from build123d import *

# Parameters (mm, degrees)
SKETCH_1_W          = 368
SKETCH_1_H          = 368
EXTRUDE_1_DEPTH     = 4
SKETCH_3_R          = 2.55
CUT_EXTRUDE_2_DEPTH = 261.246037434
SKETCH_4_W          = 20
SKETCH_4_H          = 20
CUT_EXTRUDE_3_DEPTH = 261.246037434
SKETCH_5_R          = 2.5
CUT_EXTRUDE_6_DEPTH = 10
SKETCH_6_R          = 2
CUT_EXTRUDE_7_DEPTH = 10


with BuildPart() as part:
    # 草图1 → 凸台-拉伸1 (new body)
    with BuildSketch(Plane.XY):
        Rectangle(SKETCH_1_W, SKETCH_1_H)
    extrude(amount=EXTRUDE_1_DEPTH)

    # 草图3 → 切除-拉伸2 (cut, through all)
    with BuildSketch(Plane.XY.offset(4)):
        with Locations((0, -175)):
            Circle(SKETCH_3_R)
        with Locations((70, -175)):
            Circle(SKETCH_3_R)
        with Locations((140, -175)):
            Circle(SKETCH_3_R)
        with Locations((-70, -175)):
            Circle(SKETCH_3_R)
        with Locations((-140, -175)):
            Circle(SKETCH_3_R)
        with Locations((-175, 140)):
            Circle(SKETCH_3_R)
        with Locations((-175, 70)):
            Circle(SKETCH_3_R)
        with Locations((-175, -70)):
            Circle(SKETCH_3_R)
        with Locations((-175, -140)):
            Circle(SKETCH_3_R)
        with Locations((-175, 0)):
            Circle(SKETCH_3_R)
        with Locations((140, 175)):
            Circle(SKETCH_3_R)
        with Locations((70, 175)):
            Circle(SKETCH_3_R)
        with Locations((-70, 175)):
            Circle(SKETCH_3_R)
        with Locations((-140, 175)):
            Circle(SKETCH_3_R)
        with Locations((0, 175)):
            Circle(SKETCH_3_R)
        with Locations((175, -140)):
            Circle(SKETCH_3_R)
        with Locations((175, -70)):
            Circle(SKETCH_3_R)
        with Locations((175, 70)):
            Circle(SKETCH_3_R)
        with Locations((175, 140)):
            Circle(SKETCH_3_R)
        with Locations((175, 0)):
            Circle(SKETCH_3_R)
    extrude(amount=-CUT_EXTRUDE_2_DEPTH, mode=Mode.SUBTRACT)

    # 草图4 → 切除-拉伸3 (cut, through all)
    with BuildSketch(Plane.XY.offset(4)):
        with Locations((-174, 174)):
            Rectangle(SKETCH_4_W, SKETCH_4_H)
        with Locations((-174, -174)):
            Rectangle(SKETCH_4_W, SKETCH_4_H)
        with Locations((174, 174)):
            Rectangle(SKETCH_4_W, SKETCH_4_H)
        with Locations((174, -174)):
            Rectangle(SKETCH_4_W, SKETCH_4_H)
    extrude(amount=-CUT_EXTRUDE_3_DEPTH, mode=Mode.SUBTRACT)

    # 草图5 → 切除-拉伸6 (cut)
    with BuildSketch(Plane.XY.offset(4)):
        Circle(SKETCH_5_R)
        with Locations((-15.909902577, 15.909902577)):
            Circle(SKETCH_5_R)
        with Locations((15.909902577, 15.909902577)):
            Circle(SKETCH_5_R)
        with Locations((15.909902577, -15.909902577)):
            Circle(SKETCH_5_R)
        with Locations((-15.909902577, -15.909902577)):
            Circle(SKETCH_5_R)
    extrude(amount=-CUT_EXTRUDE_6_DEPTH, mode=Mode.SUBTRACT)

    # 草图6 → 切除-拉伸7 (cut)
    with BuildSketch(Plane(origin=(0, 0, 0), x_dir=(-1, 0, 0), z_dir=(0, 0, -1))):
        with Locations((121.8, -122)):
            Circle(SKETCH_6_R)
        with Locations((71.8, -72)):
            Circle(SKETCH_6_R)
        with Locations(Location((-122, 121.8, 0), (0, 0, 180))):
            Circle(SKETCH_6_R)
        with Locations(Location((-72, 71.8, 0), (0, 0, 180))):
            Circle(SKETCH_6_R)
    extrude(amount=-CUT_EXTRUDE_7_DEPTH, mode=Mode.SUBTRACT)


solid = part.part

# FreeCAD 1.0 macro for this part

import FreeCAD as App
import Part
import Sketcher

V = App.Vector

doc = App.newDocument("Part")
params = doc.addObject("Spreadsheet::Sheet", "Params")
for row, (alias, value) in enumerate([
    ("sketch1_width", "368 mm"),
    ("pad1_length", "4 mm"),
    ("sketch2_diameter", "5.1 mm"),
    ("sketch3_width", "20 mm"),
    ("sketch4_diameter", "5 mm"),
    ("pocket3_length", "10 mm"),
    ("sketch5_diameter", "4 mm"),
    ("pocket4_length", "10 mm"),
], start=1):
    params.set(f"A{row}", alias)
    params.set(f"B{row}", "=" + value)
    params.setAlias(f"B{row}", alias)

body = doc.addObject("PartDesign::Body", "Body")

sketch1 = body.newObject("Sketcher::SketchObject", "Sketch")
sketch1.AttachmentSupport = (doc.getObject("XY_Plane"), [""])
sketch1.MapMode = "FlatFace"
sketch1.addGeometry(Part.LineSegment(V(-184, 184, 0), V(-184, -184, 0)), False)
sketch1.addGeometry(Part.LineSegment(V(-184, -184, 0), V(184, -184, 0)), False)
sketch1.addGeometry(Part.LineSegment(V(184, -184, 0), V(184, 184, 0)), False)
sketch1.addGeometry(Part.LineSegment(V(184, 184, 0), V(-184, 184, 0)), False)
sketch1.addConstraint(Sketcher.Constraint("Coincident", 0, 2, 1, 1))
sketch1.addConstraint(Sketcher.Constraint("Coincident", 1, 2, 2, 1))
sketch1.addConstraint(Sketcher.Constraint("Coincident", 2, 2, 3, 1))
sketch1.addConstraint(Sketcher.Constraint("Coincident", 3, 2, 0, 1))
sketch1.addConstraint(Sketcher.Constraint("Vertical", 0))
sketch1.addConstraint(Sketcher.Constraint("Horizontal", 1))
sketch1.addConstraint(Sketcher.Constraint("Vertical", 2))
sketch1.addConstraint(Sketcher.Constraint("Horizontal", 3))
sketch1.addConstraint(Sketcher.Constraint("Symmetric", 0, 2, 2, 2, -1, 1))
sketch1.addConstraint(Sketcher.Constraint("Equal", 3, 0))
sketch1.addConstraint(Sketcher.Constraint("DistanceX", 1, 1, 1, 2, 368.0))
sketch1.setExpression("Constraints[10]", "Params.sketch1_width")
pad1 = body.newObject("PartDesign::Pad", "Pad")
pad1.Profile = sketch1
pad1.setExpression("Length", "Params.pad1_length")

sketch2 = body.newObject("Sketcher::SketchObject", "Sketch001")
sketch2.AttachmentSupport = (doc.getObject("XY_Plane"), [""])
sketch2.MapMode = "FlatFace"
sketch2.AttachmentOffset = App.Placement(V(0, 0, 4), App.Rotation())
sketch2.addGeometry(Part.Circle(V(0, -175, 0), V(0, 0, 1), 2.5), False)
sketch2.addGeometry(Part.Circle(V(70, -175, 0), V(0, 0, 1), 2.5), False)
sketch2.addGeometry(Part.Circle(V(140, -175, 0), V(0, 0, 1), 2.5), False)
sketch2.addGeometry(Part.Circle(V(-70, -175, 0), V(0, 0, 1), 2.5), False)
sketch2.addGeometry(Part.Circle(V(-140, -175, 0), V(0, 0, 1), 2.5), False)
sketch2.addGeometry(Part.Circle(V(-175, 140, 0), V(0, 0, 1), 2.5), False)
sketch2.addGeometry(Part.Circle(V(-175, 70, 0), V(0, 0, 1), 2.5), False)
sketch2.addGeometry(Part.Circle(V(-175, -70, 0), V(0, 0, 1), 2.5), False)
sketch2.addGeometry(Part.Circle(V(-175, -140, 0), V(0, 0, 1), 2.5), False)
sketch2.addGeometry(Part.Circle(V(-175, 0, 0), V(0, 0, 1), 2.5), False)
sketch2.addGeometry(Part.Circle(V(140, 175, 0), V(0, 0, 1), 2.5), False)
sketch2.addGeometry(Part.Circle(V(70, 175, 0), V(0, 0, 1), 2.5), False)
sketch2.addGeometry(Part.Circle(V(-70, 175, 0), V(0, 0, 1), 2.5), False)
sketch2.addGeometry(Part.Circle(V(-140, 175, 0), V(0, 0, 1), 2.5), False)
sketch2.addGeometry(Part.Circle(V(0, 175, 0), V(0, 0, 1), 2.5), False)
sketch2.addGeometry(Part.Circle(V(175, -140, 0), V(0, 0, 1), 2.5), False)
sketch2.addGeometry(Part.Circle(V(175, -70, 0), V(0, 0, 1), 2.5), False)
sketch2.addGeometry(Part.Circle(V(175, 70, 0), V(0, 0, 1), 2.5), False)
sketch2.addGeometry(Part.Circle(V(175, 140, 0), V(0, 0, 1), 2.5), False)
sketch2.addGeometry(Part.Circle(V(175, 0, 0), V(0, 0, 1), 2.5), False)
sketch2.addConstraint(Sketcher.Constraint("Equal", 0, 1))
sketch2.addConstraint(Sketcher.Constraint("Equal", 1, 2))
sketch2.addConstraint(Sketcher.Constraint("Equal", 2, 3))
sketch2.addConstraint(Sketcher.Constraint("Equal", 3, 4))
sketch2.addConstraint(Sketcher.Constraint("Equal", 4, 5))
sketch2.addConstraint(Sketcher.Constraint("Equal", 5, 6))
sketch2.addConstraint(Sketcher.Constraint("Equal", 6, 7))
sketch2.addConstraint(Sketcher.Constraint("Equal", 7, 8))
sketch2.addConstraint(Sketcher.Constraint("Equal", 8, 9))
sketch2.addConstraint(Sketcher.Constraint("Equal", 9, 10))
sketch2.addConstraint(Sketcher.Constraint("Equal", 10, 11))
sketch2.addConstraint(Sketcher.Constraint("Equal", 11, 12))
sketch2.addConstraint(Sketcher.Constraint("Equal", 12, 13))
sketch2.addConstraint(Sketcher.Constraint("Equal", 13, 14))
sketch2.addConstraint(Sketcher.Constraint("Equal", 14, 15))
sketch2.addConstraint(Sketcher.Constraint("Equal", 15, 16))
sketch2.addConstraint(Sketcher.Constraint("Equal", 16, 17))
sketch2.addConstraint(Sketcher.Constraint("Equal", 17, 18))
sketch2.addConstraint(Sketcher.Constraint("Equal", 18, 19))
sketch2.addConstraint(Sketcher.Constraint("Symmetric", 4, 3, 10, 3, -1, 1))
sketch2.addConstraint(Sketcher.Constraint("Symmetric", 3, 3, 11, 3, -1, 1))
sketch2.addConstraint(Sketcher.Constraint("Symmetric", 1, 3, 12, 3, -1, 1))
sketch2.addConstraint(Sketcher.Constraint("Symmetric", 2, 3, 13, 3, -1, 1))
sketch2.addConstraint(Sketcher.Constraint("Symmetric", 0, 3, 14, 3, -1, 1))
sketch2.addConstraint(Sketcher.Constraint("Symmetric", 5, 3, 15, 3, -1, 1))
sketch2.addConstraint(Sketcher.Constraint("Symmetric", 6, 3, 16, 3, -1, 1))
sketch2.addConstraint(Sketcher.Constraint("Symmetric", 7, 3, 17, 3, -1, 1))
sketch2.addConstraint(Sketcher.Constraint("Symmetric", 8, 3, 18, 3, -1, 1))
sketch2.addConstraint(Sketcher.Constraint("Symmetric", 9, 3, 19, 3, -1, 1))
sketch2.addConstraint(Sketcher.Constraint("Symmetric", 1, 3, 3, 3, -2))
sketch2.addConstraint(Sketcher.Constraint("Symmetric", 2, 3, 4, 3, -2))
sketch2.addConstraint(Sketcher.Constraint("Symmetric", 8, 3, 15, 3, -2))
sketch2.addConstraint(Sketcher.Constraint("Symmetric", 7, 3, 16, 3, -2))
sketch2.addConstraint(Sketcher.Constraint("PointOnObject", 0, 3, -2))
sketch2.addConstraint(Sketcher.Constraint("PointOnObject", 9, 3, -1))
sketch2.addConstraint(Sketcher.Constraint("Horizontal", 0, 3, 1, 3))
sketch2.addConstraint(Sketcher.Constraint("Horizontal", 1, 3, 2, 3))
sketch2.addConstraint(Sketcher.Constraint("Vertical", 5, 3, 6, 3))
sketch2.addConstraint(Sketcher.Constraint("Vertical", 8, 3, 9, 3))
sketch2.addConstraint(Sketcher.Constraint("Diameter", 0, 5.1))
sketch2.addConstraint(Sketcher.Constraint("DistanceY", 0, 3, -1, 1, 175.0))
sketch2.addConstraint(Sketcher.Constraint("DistanceX", -1, 1, 1, 3, 70.0))
sketch2.addConstraint(Sketcher.Constraint("DistanceX", -1, 1, 2, 3, 140.0))
sketch2.addConstraint(Sketcher.Constraint("DistanceX", 5, 3, -1, 1, 175.0))
sketch2.addConstraint(Sketcher.Constraint("DistanceY", -1, 1, 5, 3, 140.0))
sketch2.addConstraint(Sketcher.Constraint("DistanceY", -1, 1, 6, 3, 70.0))
sketch2.setExpression("Constraints[39]", "Params.sketch2_diameter")
pocket1 = body.newObject("PartDesign::Pocket", "Pocket")
pocket1.Profile = sketch2
pocket1.Type = "ThroughAll"

sketch3 = body.newObject("Sketcher::SketchObject", "Sketch002")
sketch3.AttachmentSupport = (doc.getObject("XY_Plane"), [""])
sketch3.MapMode = "FlatFace"
sketch3.AttachmentOffset = App.Placement(V(0, 0, 4), App.Rotation())
sketch3.addGeometry(Part.LineSegment(V(-184, 184, 0), V(-184, 164, 0)), False)
sketch3.addGeometry(Part.LineSegment(V(-184, 164, 0), V(-164, 164, 0)), False)
sketch3.addGeometry(Part.LineSegment(V(-164, 164, 0), V(-164, 184, 0)), False)
sketch3.addGeometry(Part.LineSegment(V(-164, 184, 0), V(-184, 184, 0)), False)
sketch3.addGeometry(Part.LineSegment(V(-184, -164, 0), V(-184, -184, 0)), False)
sketch3.addGeometry(Part.LineSegment(V(-184, -184, 0), V(-164, -184, 0)), False)
sketch3.addGeometry(Part.LineSegment(V(-164, -184, 0), V(-164, -164, 0)), False)
sketch3.addGeometry(Part.LineSegment(V(-164, -164, 0), V(-184, -164, 0)), False)
sketch3.addGeometry(Part.LineSegment(V(164, 184, 0), V(164, 164, 0)), False)
sketch3.addGeometry(Part.LineSegment(V(164, 164, 0), V(184, 164, 0)), False)
sketch3.addGeometry(Part.LineSegment(V(184, 164, 0), V(184, 184, 0)), False)
sketch3.addGeometry(Part.LineSegment(V(184, 184, 0), V(164, 184, 0)), False)
sketch3.addGeometry(Part.LineSegment(V(164, -164, 0), V(164, -184, 0)), False)
sketch3.addGeometry(Part.LineSegment(V(164, -184, 0), V(184, -184, 0)), False)
sketch3.addGeometry(Part.LineSegment(V(184, -184, 0), V(184, -164, 0)), False)
sketch3.addGeometry(Part.LineSegment(V(184, -164, 0), V(164, -164, 0)), False)
sketch3.addConstraint(Sketcher.Constraint("Coincident", 0, 2, 1, 1))
sketch3.addConstraint(Sketcher.Constraint("Coincident", 1, 2, 2, 1))
sketch3.addConstraint(Sketcher.Constraint("Coincident", 2, 2, 3, 1))
sketch3.addConstraint(Sketcher.Constraint("Coincident", 3, 2, 0, 1))
sketch3.addConstraint(Sketcher.Constraint("Coincident", 4, 2, 5, 1))
sketch3.addConstraint(Sketcher.Constraint("Coincident", 5, 2, 6, 1))
sketch3.addConstraint(Sketcher.Constraint("Coincident", 6, 2, 7, 1))
sketch3.addConstraint(Sketcher.Constraint("Coincident", 7, 2, 4, 1))
sketch3.addConstraint(Sketcher.Constraint("Coincident", 8, 2, 9, 1))
sketch3.addConstraint(Sketcher.Constraint("Coincident", 9, 2, 10, 1))
sketch3.addConstraint(Sketcher.Constraint("Coincident", 10, 2, 11, 1))
sketch3.addConstraint(Sketcher.Constraint("Coincident", 11, 2, 8, 1))
sketch3.addConstraint(Sketcher.Constraint("Coincident", 12, 2, 13, 1))
sketch3.addConstraint(Sketcher.Constraint("Coincident", 13, 2, 14, 1))
sketch3.addConstraint(Sketcher.Constraint("Coincident", 14, 2, 15, 1))
sketch3.addConstraint(Sketcher.Constraint("Coincident", 15, 2, 12, 1))
sketch3.addConstraint(Sketcher.Constraint("Vertical", 0))
sketch3.addConstraint(Sketcher.Constraint("Horizontal", 1))
sketch3.addConstraint(Sketcher.Constraint("Vertical", 2))
sketch3.addConstraint(Sketcher.Constraint("Horizontal", 3))
sketch3.addConstraint(Sketcher.Constraint("Vertical", 4))
sketch3.addConstraint(Sketcher.Constraint("Horizontal", 5))
sketch3.addConstraint(Sketcher.Constraint("Vertical", 6))
sketch3.addConstraint(Sketcher.Constraint("Horizontal", 7))
sketch3.addConstraint(Sketcher.Constraint("Vertical", 8))
sketch3.addConstraint(Sketcher.Constraint("Horizontal", 9))
sketch3.addConstraint(Sketcher.Constraint("Vertical", 10))
sketch3.addConstraint(Sketcher.Constraint("Horizontal", 11))
sketch3.addConstraint(Sketcher.Constraint("Vertical", 12))
sketch3.addConstraint(Sketcher.Constraint("Horizontal", 13))
sketch3.addConstraint(Sketcher.Constraint("Vertical", 14))
sketch3.addConstraint(Sketcher.Constraint("Horizontal", 15))
sketch3.addConstraint(Sketcher.Constraint("Symmetric", 6, 2, 8, 2, -1, 1))
sketch3.addConstraint(Sketcher.Constraint("Symmetric", 4, 2, 10, 2, -1, 1))
sketch3.addConstraint(Sketcher.Constraint("Symmetric", 2, 2, 12, 2, -1, 1))
sketch3.addConstraint(Sketcher.Constraint("Symmetric", 0, 2, 14, 2, -1, 1))
sketch3.addConstraint(Sketcher.Constraint("Symmetric", 1, 2, 8, 2, -2))
sketch3.addConstraint(Sketcher.Constraint("Symmetric", 3, 2, 10, 2, -2))
sketch3.addConstraint(Sketcher.Constraint("Equal", 15, 0))
sketch3.addConstraint(Sketcher.Constraint("DistanceX", 1, 1, 1, 2, 20.0))
sketch3.addConstraint(Sketcher.Constraint("DistanceX", 0, 2, -1, 1, 184.0))
sketch3.addConstraint(Sketcher.Constraint("DistanceY", -1, 1, 0, 2, 164.0))
sketch3.setExpression("Constraints[39]", "Params.sketch3_width")
pocket2 = body.newObject("PartDesign::Pocket", "Pocket001")
pocket2.Profile = sketch3
pocket2.Type = "ThroughAll"

sketch4 = body.newObject("Sketcher::SketchObject", "Sketch003")
sketch4.AttachmentSupport = (doc.getObject("XY_Plane"), [""])
sketch4.MapMode = "FlatFace"
sketch4.AttachmentOffset = App.Placement(V(0, 0, 4), App.Rotation())
sketch4.addGeometry(Part.Circle(V(0, 0, 0), V(0, 0, 1), 2.5), False)
sketch4.addGeometry(Part.Circle(V(-15.9, 15.9, 0), V(0, 0, 1), 2.5), False)
sketch4.addGeometry(Part.Circle(V(15.9, 15.9, 0), V(0, 0, 1), 2.5), False)
sketch4.addGeometry(Part.Circle(V(15.9, -15.9, 0), V(0, 0, 1), 2.5), False)
sketch4.addGeometry(Part.Circle(V(-15.9, -15.9, 0), V(0, 0, 1), 2.5), False)
sketch4.addConstraint(Sketcher.Constraint("Coincident", 0, 3, -1, 1))
sketch4.addConstraint(Sketcher.Constraint("Equal", 0, 1))
sketch4.addConstraint(Sketcher.Constraint("Equal", 1, 2))
sketch4.addConstraint(Sketcher.Constraint("Equal", 2, 3))
sketch4.addConstraint(Sketcher.Constraint("Equal", 3, 4))
sketch4.addConstraint(Sketcher.Constraint("Symmetric", 1, 3, 3, 3, -1, 1))
sketch4.addConstraint(Sketcher.Constraint("Symmetric", 2, 3, 4, 3, -1, 1))
sketch4.addConstraint(Sketcher.Constraint("Symmetric", 1, 3, 2, 3, -2))
sketch4.addConstraint(Sketcher.Constraint("Diameter", 0, 5.0))
sketch4.addConstraint(Sketcher.Constraint("DistanceX", 1, 3, -1, 1, 15.909903))
sketch4.addConstraint(Sketcher.Constraint("DistanceY", -1, 1, 1, 3, 15.909903))
sketch4.setExpression("Constraints[8]", "Params.sketch4_diameter")
pocket3 = body.newObject("PartDesign::Pocket", "Pocket002")
pocket3.Profile = sketch4
pocket3.setExpression("Length", "Params.pocket3_length")

sketch5 = body.newObject("Sketcher::SketchObject", "Sketch004")
sketch5.AttachmentSupport = (doc.getObject("XY_Plane"), [""])
sketch5.MapMode = "FlatFace"
sketch5.addGeometry(Part.Circle(V(-121.8, -122, 0), V(0, 0, 1), 2), False)
sketch5.addGeometry(Part.Circle(V(-71.8, -72, 0), V(0, 0, 1), 2), False)
sketch5.addGeometry(Part.Circle(V(122, 121.8, 0), V(0, 0, 1), 2), False)
sketch5.addGeometry(Part.Circle(V(72, 71.8, 0), V(0, 0, 1), 2), False)
sketch5.addConstraint(Sketcher.Constraint("Equal", 0, 1))
sketch5.addConstraint(Sketcher.Constraint("Equal", 1, 2))
sketch5.addConstraint(Sketcher.Constraint("Equal", 2, 3))
sketch5.addConstraint(Sketcher.Constraint("Diameter", 0, 4.0))
sketch5.addConstraint(Sketcher.Constraint("DistanceY", 0, 3, -1, 1, 122.0))
sketch5.addConstraint(Sketcher.Constraint("DistanceY", 1, 3, -1, 1, 72.0))
sketch5.addConstraint(Sketcher.Constraint("DistanceX", -1, 1, 2, 3, 122.0))
sketch5.addConstraint(Sketcher.Constraint("DistanceX", -1, 1, 3, 3, 72.0))
sketch5.addConstraint(Sketcher.Constraint("DistanceX", 0, 3, 1, 3, 50.0))
sketch5.addConstraint(Sketcher.Constraint("DistanceY", 3, 3, 2, 3, 50.0))
sketch5.addConstraint(Sketcher.Constraint("DistanceX", 0, 3, -1, 1, 121.8))
sketch5.addConstraint(Sketcher.Constraint("DistanceY", -1, 1, 2, 3, 121.8))
sketch5.setExpression("Constraints[3]", "Params.sketch5_diameter")
pocket4 = body.newObject("PartDesign::Pocket", "Pocket003")
pocket4.Profile = sketch5
pocket4.setExpression("Length", "Params.pocket4_length")
pocket4.Reversed = True

doc.recompute()
